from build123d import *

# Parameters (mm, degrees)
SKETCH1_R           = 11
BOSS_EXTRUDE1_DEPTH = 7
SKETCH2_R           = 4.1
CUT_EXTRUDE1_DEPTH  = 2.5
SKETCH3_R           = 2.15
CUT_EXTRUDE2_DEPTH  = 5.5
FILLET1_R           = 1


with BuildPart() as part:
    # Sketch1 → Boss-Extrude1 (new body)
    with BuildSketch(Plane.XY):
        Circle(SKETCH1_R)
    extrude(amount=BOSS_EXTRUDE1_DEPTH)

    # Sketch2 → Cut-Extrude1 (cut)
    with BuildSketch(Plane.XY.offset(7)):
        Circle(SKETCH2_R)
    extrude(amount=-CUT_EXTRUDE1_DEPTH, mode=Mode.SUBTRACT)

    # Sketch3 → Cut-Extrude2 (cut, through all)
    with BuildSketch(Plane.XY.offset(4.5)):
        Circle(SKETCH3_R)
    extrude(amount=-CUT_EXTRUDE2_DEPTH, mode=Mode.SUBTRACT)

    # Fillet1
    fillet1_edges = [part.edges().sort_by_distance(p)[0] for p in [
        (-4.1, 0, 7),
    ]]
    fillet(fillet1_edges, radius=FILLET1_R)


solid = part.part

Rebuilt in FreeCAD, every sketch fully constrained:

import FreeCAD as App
import Part
import Sketcher
from FreeCAD import Vector


def edges_at(feature, points):
    """Names of the edges that pass closest to the given points."""
    edges = feature.Shape.Edges
    near = lambda p: min(range(len(edges)), key=lambda i: edges[i].distToShape(Part.Vertex(*p))[0])
    return sorted({f"Edge{near(p) + 1}" for p in points})

doc = App.newDocument("Part")
params = doc.addObject("Spreadsheet::Sheet", "Params")
for row, (alias, value) in enumerate([
    ("sketch1_diameter", "22 mm"),
    ("pad1_length", "7 mm"),
    ("sketch2_diameter", "8.2 mm"),
    ("pocket1_length", "2.5 mm"),
    ("sketch3_diameter", "4.3 mm"),
    ("fillet_radius", "1 mm"),
], start=1):
    params.set(f"A{row}", alias)
    params.set(f"B{row}", "=" + value)
    params.setAlias(f"B{row}", alias)

body = doc.addObject("PartDesign::Body", "Body")

sketch1 = body.newObject("Sketcher::SketchObject", "Sketch")
sketch1.AttachmentSupport = (doc.getObject("XY_Plane"), [""])
sketch1.MapMode = "FlatFace"
sketch1.addGeometry(Part.Circle(Vector(0, 0, 0), Vector(0, 0, 1), 11), False)
sketch1.addConstraint([
    Sketcher.Constraint("Coincident", 0, 3, -1, 1),
    Sketcher.Constraint("Diameter", 0, 22.0),
])
sketch1.setExpression("Constraints[1]", "Params.sketch1_diameter")
pad1 = body.newObject("PartDesign::Pad", "Pad")
pad1.Profile = sketch1
pad1.setExpression("Length", "Params.pad1_length")

sketch2 = body.newObject("Sketcher::SketchObject", "Sketch001")
sketch2.AttachmentSupport = (doc.getObject("XY_Plane"), [""])
sketch2.MapMode = "FlatFace"
sketch2.AttachmentOffset = App.Placement(Vector(0, 0, 7), App.Rotation())
sketch2.addGeometry(Part.Circle(Vector(0, 0, 0), Vector(0, 0, 1), 4.1), False)
sketch2.addConstraint([
    Sketcher.Constraint("Coincident", 0, 3, -1, 1),
    Sketcher.Constraint("Diameter", 0, 8.2),
])
sketch2.setExpression("Constraints[1]", "Params.sketch2_diameter")
pocket1 = body.newObject("PartDesign::Pocket", "Pocket")
pocket1.Profile = sketch2
pocket1.setExpression("Length", "Params.pocket1_length")

sketch3 = body.newObject("Sketcher::SketchObject", "Sketch002")
sketch3.AttachmentSupport = (doc.getObject("XY_Plane"), [""])
sketch3.MapMode = "FlatFace"
sketch3.AttachmentOffset = App.Placement(Vector(0, 0, 4.5), App.Rotation())
sketch3.addGeometry(Part.Circle(Vector(0, 0, 0), Vector(0, 0, 1), 2.1), False)
sketch3.addConstraint([
    Sketcher.Constraint("Coincident", 0, 3, -1, 1),
    Sketcher.Constraint("Diameter", 0, 4.3),
])
sketch3.setExpression("Constraints[1]", "Params.sketch3_diameter")
pocket2 = body.newObject("PartDesign::Pocket", "Pocket001")
pocket2.Profile = sketch3
pocket2.Type = "ThroughAll"
doc.recompute()

fillet = body.newObject("PartDesign::Fillet", "Fillet")
fillet.Base = (pocket2, edges_at(pocket2, [(-4.1, 0, 7)]))
fillet.setExpression("Radius", "Params.fillet_radius")

doc.recompute()
